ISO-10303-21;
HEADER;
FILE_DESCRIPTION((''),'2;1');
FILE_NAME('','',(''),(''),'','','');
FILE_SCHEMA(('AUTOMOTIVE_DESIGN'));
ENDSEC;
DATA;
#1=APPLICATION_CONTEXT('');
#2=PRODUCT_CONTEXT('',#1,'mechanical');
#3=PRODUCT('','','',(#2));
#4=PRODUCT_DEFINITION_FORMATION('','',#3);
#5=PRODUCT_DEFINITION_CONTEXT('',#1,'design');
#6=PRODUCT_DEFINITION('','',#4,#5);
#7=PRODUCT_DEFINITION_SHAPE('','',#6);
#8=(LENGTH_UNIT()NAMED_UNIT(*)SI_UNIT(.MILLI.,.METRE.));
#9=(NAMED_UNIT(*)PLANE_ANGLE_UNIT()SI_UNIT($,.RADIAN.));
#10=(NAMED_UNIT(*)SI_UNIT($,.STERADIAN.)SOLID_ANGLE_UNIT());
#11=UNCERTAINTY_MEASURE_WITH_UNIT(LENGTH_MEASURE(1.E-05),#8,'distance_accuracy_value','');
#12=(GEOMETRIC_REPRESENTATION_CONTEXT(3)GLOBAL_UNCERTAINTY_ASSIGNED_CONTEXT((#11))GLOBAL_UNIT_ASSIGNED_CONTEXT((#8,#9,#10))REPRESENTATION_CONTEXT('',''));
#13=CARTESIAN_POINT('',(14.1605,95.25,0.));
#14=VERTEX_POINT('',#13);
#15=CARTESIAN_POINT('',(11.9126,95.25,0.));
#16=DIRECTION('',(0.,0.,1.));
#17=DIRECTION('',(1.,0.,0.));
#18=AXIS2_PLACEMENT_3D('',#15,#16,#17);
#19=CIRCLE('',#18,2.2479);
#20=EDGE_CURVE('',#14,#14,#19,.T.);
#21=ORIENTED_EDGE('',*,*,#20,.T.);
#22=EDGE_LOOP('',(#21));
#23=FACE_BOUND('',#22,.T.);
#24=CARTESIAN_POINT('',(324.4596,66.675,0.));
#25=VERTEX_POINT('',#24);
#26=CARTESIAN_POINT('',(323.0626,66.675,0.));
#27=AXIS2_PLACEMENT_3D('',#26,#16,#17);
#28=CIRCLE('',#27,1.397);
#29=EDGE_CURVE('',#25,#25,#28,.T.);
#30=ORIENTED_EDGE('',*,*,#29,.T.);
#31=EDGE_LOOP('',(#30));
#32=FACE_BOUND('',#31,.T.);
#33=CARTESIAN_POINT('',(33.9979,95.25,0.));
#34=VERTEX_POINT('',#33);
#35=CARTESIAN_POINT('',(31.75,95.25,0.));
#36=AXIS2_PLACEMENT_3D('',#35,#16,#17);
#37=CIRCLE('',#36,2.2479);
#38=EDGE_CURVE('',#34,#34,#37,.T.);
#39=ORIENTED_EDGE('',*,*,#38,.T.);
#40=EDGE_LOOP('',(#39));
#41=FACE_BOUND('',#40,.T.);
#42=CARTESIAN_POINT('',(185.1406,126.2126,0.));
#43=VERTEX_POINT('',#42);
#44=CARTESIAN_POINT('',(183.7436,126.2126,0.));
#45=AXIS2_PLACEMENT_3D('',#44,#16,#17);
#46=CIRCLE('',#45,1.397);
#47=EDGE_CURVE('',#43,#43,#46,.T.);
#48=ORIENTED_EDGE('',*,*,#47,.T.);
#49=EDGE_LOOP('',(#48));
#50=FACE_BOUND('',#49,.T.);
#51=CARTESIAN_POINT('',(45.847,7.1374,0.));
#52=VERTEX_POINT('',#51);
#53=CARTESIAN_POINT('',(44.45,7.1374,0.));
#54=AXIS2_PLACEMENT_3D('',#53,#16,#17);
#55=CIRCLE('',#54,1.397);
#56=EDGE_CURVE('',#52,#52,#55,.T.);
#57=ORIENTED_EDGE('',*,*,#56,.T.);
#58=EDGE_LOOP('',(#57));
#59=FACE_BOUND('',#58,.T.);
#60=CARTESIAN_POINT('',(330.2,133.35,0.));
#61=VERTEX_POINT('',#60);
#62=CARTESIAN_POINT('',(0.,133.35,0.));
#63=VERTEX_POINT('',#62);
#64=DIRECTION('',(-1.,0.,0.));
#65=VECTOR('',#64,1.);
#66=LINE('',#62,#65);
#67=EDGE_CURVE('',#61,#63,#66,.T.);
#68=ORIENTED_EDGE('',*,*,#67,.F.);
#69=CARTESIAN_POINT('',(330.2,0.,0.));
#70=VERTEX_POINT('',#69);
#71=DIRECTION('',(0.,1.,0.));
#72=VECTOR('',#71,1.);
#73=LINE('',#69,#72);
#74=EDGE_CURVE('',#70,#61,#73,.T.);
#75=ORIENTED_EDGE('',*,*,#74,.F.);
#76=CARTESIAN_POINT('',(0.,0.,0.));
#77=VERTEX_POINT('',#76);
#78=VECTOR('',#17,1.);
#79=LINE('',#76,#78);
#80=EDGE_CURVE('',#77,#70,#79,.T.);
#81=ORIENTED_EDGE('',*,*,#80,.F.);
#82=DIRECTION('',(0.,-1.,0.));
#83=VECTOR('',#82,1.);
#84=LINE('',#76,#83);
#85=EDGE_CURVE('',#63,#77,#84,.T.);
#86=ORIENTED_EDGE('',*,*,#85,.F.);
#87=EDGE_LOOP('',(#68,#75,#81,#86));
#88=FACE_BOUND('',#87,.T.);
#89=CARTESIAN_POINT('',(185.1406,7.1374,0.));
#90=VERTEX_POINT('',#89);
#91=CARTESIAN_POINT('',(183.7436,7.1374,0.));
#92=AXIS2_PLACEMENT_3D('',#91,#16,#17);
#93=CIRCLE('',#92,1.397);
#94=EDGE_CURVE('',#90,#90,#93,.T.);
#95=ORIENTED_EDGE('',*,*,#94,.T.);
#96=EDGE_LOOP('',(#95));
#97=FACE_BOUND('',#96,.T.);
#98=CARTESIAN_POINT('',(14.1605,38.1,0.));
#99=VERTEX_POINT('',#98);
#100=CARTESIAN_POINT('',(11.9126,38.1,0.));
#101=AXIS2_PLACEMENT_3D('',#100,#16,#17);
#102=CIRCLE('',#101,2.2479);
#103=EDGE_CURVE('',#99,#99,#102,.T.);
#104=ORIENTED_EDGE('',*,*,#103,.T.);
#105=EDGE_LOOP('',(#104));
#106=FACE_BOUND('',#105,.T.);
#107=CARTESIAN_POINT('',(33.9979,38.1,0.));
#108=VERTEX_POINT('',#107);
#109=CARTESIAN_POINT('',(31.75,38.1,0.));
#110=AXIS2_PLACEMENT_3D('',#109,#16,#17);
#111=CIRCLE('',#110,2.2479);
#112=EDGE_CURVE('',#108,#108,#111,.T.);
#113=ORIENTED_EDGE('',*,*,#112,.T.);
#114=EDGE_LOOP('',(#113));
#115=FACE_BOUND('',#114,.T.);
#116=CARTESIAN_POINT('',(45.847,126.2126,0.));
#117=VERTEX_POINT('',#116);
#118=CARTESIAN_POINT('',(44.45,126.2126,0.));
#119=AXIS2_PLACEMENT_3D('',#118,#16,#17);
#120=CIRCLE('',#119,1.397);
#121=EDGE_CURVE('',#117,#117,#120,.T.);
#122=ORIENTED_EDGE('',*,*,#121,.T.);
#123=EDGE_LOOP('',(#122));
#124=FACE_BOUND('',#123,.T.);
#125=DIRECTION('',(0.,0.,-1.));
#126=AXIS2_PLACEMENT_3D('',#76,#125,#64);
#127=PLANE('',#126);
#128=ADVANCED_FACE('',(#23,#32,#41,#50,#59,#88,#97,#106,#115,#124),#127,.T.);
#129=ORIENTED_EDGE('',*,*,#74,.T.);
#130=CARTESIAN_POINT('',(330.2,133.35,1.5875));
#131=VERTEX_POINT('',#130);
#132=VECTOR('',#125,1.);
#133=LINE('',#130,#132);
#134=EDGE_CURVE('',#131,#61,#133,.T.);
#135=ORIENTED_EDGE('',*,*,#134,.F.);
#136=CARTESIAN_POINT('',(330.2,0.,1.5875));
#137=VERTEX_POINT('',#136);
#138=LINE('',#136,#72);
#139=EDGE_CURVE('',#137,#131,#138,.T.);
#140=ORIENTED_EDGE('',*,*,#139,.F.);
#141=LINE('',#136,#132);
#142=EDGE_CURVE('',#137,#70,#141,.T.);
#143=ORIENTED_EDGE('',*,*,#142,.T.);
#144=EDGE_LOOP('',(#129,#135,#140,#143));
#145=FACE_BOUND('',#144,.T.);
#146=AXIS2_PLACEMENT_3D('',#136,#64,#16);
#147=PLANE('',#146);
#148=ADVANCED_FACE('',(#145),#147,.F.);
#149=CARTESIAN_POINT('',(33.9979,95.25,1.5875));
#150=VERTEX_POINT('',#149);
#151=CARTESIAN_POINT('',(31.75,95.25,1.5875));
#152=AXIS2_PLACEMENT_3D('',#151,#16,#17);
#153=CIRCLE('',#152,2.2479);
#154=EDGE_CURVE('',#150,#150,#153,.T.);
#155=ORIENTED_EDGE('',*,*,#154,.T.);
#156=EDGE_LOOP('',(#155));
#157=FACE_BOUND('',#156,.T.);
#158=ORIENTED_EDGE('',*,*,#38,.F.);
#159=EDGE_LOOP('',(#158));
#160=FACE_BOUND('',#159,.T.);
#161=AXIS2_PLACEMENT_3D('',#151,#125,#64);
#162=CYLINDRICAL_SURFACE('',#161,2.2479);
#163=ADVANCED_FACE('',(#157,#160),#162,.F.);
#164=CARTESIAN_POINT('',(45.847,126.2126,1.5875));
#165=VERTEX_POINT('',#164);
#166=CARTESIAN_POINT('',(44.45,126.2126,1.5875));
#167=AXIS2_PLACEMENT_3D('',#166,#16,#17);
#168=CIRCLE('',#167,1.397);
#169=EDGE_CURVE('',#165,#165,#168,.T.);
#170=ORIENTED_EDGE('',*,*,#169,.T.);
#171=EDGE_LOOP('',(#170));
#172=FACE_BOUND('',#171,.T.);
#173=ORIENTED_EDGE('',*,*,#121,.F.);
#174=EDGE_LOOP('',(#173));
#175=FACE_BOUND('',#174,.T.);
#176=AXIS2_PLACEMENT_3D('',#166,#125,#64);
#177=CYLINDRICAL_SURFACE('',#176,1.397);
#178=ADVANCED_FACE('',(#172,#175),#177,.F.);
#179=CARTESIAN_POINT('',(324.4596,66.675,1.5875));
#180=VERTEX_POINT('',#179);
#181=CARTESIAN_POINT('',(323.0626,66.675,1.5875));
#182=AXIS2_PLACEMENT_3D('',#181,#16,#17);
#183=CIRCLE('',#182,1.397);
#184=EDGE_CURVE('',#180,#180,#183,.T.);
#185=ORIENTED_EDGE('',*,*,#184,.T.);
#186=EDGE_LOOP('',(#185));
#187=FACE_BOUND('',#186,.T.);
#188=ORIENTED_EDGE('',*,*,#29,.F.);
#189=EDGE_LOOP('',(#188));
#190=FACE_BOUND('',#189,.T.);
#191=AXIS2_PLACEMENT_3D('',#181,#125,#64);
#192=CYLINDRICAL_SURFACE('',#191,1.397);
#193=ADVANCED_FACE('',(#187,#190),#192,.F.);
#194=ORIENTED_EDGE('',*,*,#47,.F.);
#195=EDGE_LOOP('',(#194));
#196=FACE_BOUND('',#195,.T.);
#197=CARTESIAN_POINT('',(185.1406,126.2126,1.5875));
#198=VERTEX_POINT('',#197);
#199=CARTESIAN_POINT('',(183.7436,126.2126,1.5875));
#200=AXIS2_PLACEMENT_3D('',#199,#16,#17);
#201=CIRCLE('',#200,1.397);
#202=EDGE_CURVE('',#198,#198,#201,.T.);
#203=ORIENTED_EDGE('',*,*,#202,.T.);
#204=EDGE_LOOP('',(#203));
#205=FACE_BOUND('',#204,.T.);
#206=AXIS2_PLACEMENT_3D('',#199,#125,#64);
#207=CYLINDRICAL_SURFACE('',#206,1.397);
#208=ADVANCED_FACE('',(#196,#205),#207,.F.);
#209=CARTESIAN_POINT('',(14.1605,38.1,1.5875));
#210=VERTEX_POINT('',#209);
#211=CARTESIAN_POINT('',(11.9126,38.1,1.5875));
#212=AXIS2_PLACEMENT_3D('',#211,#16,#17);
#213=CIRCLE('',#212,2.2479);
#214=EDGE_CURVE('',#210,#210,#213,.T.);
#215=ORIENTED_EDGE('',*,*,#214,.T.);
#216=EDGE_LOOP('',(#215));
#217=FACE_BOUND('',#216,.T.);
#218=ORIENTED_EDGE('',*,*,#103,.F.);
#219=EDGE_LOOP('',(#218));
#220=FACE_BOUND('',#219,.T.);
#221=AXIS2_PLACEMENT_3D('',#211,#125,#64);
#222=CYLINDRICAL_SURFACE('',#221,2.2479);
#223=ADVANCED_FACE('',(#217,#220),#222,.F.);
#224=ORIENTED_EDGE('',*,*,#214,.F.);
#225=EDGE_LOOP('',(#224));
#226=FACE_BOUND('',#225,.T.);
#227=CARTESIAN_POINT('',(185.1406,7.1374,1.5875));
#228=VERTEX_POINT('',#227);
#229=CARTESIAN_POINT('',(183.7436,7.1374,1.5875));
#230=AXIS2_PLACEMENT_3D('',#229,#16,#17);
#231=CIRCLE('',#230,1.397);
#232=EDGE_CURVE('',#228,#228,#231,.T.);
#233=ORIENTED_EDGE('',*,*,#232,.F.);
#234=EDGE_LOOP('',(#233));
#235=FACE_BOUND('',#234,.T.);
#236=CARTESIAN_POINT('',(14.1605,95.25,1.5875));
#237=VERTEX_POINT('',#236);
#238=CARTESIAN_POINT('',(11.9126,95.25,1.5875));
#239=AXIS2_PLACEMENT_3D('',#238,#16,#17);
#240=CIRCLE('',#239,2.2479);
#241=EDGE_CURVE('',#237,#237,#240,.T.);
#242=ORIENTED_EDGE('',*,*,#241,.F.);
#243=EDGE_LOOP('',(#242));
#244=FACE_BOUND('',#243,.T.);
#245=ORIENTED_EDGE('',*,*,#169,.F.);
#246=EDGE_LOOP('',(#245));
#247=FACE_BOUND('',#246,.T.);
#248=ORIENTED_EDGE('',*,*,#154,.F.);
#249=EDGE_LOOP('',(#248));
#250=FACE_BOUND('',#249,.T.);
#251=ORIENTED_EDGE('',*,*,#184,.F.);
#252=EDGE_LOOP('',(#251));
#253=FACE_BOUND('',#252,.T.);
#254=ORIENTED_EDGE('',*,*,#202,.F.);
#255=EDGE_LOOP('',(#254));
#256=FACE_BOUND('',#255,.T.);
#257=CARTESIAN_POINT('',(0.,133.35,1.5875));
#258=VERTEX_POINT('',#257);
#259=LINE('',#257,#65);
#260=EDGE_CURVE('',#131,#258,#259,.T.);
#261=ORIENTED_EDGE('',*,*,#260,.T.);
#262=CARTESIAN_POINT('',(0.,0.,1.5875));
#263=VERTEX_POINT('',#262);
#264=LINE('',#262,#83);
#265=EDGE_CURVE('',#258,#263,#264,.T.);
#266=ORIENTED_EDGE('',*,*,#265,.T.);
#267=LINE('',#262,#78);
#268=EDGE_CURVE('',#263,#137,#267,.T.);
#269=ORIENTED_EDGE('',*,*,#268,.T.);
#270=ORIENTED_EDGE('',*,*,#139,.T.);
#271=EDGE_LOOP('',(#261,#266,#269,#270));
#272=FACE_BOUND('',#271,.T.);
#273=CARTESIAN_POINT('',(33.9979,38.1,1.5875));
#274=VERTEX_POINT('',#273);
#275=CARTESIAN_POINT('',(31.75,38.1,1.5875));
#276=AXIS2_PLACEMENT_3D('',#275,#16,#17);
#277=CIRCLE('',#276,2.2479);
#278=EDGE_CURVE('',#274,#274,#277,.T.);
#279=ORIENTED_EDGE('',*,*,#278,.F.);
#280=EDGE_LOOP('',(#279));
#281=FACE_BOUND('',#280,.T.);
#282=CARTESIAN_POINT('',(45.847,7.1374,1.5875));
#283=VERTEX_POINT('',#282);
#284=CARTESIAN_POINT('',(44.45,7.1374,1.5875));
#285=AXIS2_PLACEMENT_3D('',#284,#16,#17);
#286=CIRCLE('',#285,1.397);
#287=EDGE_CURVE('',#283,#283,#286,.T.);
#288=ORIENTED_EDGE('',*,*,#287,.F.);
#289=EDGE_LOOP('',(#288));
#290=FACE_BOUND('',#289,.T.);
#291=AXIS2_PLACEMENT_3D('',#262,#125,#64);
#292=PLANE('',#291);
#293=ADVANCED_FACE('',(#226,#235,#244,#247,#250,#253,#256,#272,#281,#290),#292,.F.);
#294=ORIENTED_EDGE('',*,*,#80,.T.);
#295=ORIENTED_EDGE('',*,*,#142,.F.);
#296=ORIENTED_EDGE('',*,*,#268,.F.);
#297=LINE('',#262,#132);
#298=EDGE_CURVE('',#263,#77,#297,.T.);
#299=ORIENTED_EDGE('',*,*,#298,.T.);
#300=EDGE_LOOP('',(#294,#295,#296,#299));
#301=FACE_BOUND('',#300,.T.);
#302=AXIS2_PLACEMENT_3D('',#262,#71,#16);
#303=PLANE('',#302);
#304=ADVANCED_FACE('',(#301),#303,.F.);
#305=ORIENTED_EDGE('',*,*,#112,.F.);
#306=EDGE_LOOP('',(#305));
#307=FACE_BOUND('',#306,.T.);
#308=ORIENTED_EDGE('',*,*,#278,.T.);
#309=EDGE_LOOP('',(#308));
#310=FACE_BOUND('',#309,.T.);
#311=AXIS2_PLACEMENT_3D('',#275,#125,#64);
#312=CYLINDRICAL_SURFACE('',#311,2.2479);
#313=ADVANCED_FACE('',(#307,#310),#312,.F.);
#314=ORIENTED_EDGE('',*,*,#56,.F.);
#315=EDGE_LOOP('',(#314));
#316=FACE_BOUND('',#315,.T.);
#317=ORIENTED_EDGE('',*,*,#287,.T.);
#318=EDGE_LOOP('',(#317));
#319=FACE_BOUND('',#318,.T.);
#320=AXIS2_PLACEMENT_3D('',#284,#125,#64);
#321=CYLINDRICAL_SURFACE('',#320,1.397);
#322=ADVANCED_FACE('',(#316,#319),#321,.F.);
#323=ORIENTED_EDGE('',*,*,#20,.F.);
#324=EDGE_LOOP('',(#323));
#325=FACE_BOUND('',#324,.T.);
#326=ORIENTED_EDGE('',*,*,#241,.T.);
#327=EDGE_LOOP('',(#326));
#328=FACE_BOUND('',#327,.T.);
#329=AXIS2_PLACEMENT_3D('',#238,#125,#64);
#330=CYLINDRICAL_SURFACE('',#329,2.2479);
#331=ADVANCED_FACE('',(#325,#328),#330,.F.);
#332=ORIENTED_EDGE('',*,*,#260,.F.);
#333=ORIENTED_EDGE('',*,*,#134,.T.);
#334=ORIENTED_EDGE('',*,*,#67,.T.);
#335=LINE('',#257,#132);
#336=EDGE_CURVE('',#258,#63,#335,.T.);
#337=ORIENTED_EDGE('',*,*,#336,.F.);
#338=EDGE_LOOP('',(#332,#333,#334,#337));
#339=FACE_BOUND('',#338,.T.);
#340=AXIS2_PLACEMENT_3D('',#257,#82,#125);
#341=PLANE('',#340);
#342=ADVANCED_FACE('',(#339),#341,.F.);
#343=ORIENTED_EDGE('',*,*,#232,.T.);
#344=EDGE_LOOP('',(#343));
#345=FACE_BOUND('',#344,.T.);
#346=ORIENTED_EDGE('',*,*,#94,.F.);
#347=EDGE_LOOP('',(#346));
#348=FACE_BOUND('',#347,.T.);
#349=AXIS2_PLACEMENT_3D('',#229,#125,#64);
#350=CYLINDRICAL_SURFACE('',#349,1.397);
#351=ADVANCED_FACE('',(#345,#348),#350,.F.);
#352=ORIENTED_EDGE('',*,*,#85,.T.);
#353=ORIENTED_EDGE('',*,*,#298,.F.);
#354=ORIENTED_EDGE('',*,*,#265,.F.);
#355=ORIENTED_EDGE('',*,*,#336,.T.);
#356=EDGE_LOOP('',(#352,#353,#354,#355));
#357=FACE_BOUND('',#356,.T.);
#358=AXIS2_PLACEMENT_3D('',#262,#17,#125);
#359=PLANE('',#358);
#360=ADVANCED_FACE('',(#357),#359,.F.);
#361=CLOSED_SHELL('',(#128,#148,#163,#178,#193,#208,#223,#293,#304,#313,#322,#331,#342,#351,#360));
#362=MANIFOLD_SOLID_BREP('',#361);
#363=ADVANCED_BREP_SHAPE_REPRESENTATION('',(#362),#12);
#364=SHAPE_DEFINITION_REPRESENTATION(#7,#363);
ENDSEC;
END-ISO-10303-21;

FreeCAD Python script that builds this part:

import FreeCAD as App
import Part
import Sketcher

V = App.Vector
Q = App.Units.Quantity

doc = App.newDocument("Part")
body = doc.addObject("PartDesign::Body", "Body")

sketch1 = doc.addObject("Sketcher::SketchObject", "Sketch")
body.addObject(sketch1)
sketch1.AttachmentSupport = (doc.XY_Plane, [""])
sketch1.MapMode = "FlatFace"
sketch1.addGeometry([
    Part.LineSegment(V(0, 133.35, 0), V(0, 0, 0)),
    Part.LineSegment(V(0, 0, 0), V(330.2, 0, 0)),
    Part.LineSegment(V(330.2, 0, 0), V(330.2, 133.35, 0)),
    Part.LineSegment(V(330.2, 133.35, 0), V(0, 133.35, 0)),
    Part.Circle(V(44.45, 7.1374, 0), V(0, 0, 1), 1.397),
    Part.Circle(V(11.9126, 38.1, 0), V(0, 0, 1), 2.2479),
    Part.Circle(V(31.75, 38.1, 0), V(0, 0, 1), 2.2479),
    Part.Circle(V(183.7436, 7.1374, 0), V(0, 0, 1), 1.397),
    Part.Circle(V(11.9126, 95.25, 0), V(0, 0, 1), 2.2479),
    Part.Circle(V(31.75, 95.25, 0), V(0, 0, 1), 2.2479),
    Part.Circle(V(44.45, 126.2126, 0), V(0, 0, 1), 1.397),
    Part.Circle(V(323.0626, 66.675, 0), V(0, 0, 1), 1.397),
    Part.Circle(V(183.7436, 126.2126, 0), V(0, 0, 1), 1.397),
], False)
sketch1.addConstraint([
    Sketcher.Constraint("Coincident", 0, 2, 1, 1),
    Sketcher.Constraint("Coincident", 1, 2, 2, 1),
    Sketcher.Constraint("Coincident", 2, 2, 3, 1),
    Sketcher.Constraint("Coincident", 3, 2, 0, 1),
    Sketcher.Constraint("Vertical", 0),
    Sketcher.Constraint("Horizontal", 1),
    Sketcher.Constraint("Vertical", 2),
    Sketcher.Constraint("Horizontal", 3),
    Sketcher.Constraint("Coincident", 0, 2, -1, 1),
    Sketcher.Constraint("Equal", 5, 6),
    Sketcher.Constraint("Equal", 4, 7),
    Sketcher.Constraint("Equal", 6, 8),
    Sketcher.Constraint("Equal", 8, 9),
    Sketcher.Constraint("Equal", 7, 10),
    Sketcher.Constraint("Equal", 10, 11),
    Sketcher.Constraint("Equal", 11, 12),
    Sketcher.Constraint("Horizontal", 5, 3, 6, 3),
    Sketcher.Constraint("Horizontal", 4, 3, 7, 3),
    Sketcher.Constraint("Horizontal", 8, 3, 9, 3),
    Sketcher.Constraint("Horizontal", 10, 3, 12, 3),
    Sketcher.Constraint("Vertical", 5, 3, 8, 3),
    Sketcher.Constraint("Vertical", 6, 3, 9, 3),
    Sketcher.Constraint("Vertical", 4, 3, 10, 3),
    Sketcher.Constraint("Vertical", 7, 3, 12, 3),
    Sketcher.Constraint("Diameter", 4, Q("0.11 in")),
    Sketcher.Constraint("DistanceX", 1, 1, 1, 2, Q("13 in")),
    Sketcher.Constraint("Diameter", 5, Q("0.177 in")),
    Sketcher.Constraint("DistanceY", 0, 2, 0, 1, Q("5.25 in")),
    Sketcher.Constraint("DistanceY", -1, 1, 5, 3, Q("1.5 in")),
    Sketcher.Constraint("DistanceX", 6, 3, 4, 3, Q("0.5 in")),
    Sketcher.Constraint("DistanceY", 8, 3, 3, 2, Q("1.5 in")),
    Sketcher.Constraint("DistanceX", -1, 1, 4, 3, Q("1.75 in")),
    Sketcher.Constraint("DistanceY", -1, 1, 4, 3, Q("0.281 in")),
    Sketcher.Constraint("DistanceX", -1, 1, 5, 3, Q("0.469 in")),
    Sketcher.Constraint("DistanceX", -1, 1, 7, 3, Q("7.234 in")),
    Sketcher.Constraint("DistanceY", -1, 1, 10, 3, Q("4.969 in")),
    Sketcher.Constraint("DistanceX", -1, 1, 11, 3, Q("12.719 in")),
    Sketcher.Constraint("DistanceY", -1, 1, 11, 3, Q("2.625 in")),
])
pad1 = doc.addObject("PartDesign::Pad", "Pad")
body.addObject(pad1)
pad1.Profile = sketch1
pad1.Length = Q("0.0625 in")

doc.recompute()
